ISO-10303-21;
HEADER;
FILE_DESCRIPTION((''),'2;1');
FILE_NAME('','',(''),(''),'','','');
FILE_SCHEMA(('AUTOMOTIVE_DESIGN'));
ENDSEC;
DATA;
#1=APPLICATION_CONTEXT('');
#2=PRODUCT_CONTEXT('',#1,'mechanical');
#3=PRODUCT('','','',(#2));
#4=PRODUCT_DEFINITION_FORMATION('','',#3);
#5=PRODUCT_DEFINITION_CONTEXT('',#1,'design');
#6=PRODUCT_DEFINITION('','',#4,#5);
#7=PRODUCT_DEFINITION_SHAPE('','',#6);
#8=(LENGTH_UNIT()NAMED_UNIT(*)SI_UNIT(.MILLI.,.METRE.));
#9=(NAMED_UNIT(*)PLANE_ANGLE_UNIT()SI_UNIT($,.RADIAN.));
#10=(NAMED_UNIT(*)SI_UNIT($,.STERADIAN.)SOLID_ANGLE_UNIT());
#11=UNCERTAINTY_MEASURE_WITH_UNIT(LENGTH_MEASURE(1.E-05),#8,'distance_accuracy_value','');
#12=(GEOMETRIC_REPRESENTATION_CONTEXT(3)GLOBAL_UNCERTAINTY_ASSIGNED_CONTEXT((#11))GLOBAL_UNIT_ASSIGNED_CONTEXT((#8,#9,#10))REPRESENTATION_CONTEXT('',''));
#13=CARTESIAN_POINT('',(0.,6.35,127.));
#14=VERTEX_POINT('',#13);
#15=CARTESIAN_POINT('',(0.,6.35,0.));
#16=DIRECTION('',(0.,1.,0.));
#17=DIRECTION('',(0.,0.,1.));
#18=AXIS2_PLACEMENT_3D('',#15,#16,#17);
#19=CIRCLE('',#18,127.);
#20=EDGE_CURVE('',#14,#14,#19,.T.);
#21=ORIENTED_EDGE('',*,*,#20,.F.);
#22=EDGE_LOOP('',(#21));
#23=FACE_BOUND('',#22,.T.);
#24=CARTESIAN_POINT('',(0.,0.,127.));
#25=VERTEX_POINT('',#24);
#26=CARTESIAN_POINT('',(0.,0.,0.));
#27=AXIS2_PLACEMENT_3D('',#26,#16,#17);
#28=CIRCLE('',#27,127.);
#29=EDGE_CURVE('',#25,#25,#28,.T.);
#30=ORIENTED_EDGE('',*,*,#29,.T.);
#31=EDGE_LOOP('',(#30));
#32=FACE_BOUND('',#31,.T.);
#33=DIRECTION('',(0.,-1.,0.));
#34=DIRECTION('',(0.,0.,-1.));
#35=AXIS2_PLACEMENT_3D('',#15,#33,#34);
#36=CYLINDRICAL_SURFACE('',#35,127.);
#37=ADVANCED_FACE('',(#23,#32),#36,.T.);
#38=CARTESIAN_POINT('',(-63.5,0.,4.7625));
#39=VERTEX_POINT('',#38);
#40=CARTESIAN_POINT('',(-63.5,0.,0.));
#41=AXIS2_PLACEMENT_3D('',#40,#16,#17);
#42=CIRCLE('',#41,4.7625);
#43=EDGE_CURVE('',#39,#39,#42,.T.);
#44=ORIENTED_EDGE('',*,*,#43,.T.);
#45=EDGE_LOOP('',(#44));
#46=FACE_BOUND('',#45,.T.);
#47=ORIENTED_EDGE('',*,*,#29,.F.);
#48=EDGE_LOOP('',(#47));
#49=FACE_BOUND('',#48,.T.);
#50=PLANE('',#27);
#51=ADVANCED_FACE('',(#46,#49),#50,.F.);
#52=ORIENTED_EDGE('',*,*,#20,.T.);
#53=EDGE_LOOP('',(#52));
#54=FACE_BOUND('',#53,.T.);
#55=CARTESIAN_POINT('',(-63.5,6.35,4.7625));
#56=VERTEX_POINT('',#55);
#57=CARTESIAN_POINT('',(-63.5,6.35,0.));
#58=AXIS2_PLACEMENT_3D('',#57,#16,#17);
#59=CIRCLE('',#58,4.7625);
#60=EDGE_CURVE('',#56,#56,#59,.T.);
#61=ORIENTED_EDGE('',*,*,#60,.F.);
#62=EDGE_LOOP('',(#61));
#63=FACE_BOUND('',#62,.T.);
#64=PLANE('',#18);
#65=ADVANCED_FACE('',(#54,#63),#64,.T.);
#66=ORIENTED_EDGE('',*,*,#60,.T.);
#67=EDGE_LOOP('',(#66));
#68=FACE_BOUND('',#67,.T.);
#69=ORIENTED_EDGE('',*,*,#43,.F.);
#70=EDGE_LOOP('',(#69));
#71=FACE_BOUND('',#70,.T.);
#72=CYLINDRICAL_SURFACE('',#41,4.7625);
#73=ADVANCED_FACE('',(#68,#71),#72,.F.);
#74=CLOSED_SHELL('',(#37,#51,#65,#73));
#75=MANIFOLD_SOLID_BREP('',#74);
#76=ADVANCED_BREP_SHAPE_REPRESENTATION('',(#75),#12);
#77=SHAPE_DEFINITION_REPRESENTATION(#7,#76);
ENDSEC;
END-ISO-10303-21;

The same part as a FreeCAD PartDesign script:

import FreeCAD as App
import Part
import Sketcher
from FreeCAD import Vector
Q = App.Units.Quantity

doc = App.newDocument("Part")
params = doc.addObject("Spreadsheet::Sheet", "Params")
for row, (alias, value) in enumerate([
    ("sketch1_diameter", "10 in"),
    ("pad1_length", "0.25 in"),
    ("sketch2_diameter", "0.375 in"),
], start=1):
    params.set(f"A{row}", alias)
    params.set(f"B{row}", "=" + value)
    params.setAlias(f"B{row}", alias)

body = doc.addObject("PartDesign::Body", "Body")

# Sketch on XZ plane
sketch1 = body.newObject("Sketcher::SketchObject", "Sketch")
sketch1.AttachmentSupport = (doc.getObject("XZ_Plane"), [""])
sketch1.MapMode = "FlatFace"
sketch1.addGeometry(Part.Circle(Vector(0, 0, 0), Vector(0, 0, 1), 127), False)
sketch1.addConstraint(Sketcher.Constraint("Coincident", 0, 3, -1, 1))
sketch1.addConstraint(Sketcher.Constraint("Diameter", 0, Q("10 in")))
sketch1.setExpression("Constraints[1]", "Params.sketch1_diameter")
pad1 = body.newObject("PartDesign::Pad", "Pad")
pad1.Profile = sketch1
pad1.setExpression("Length", "Params.pad1_length")
pad1.Reversed = True

# Sketch on XZ plane
sketch2 = body.newObject("Sketcher::SketchObject", "Sketch001")
sketch2.AttachmentSupport = (doc.getObject("XZ_Plane"), [""])
sketch2.MapMode = "FlatFace"
sketch2.AttachmentOffset = App.Placement(Vector(0, 0, -0.25 * 25.4), App.Rotation())
sketch2.addGeometry(Part.Circle(Vector(-63.5, 0, 0), Vector(0, 0, 1), 4.8), False)
sketch2.addConstraint(Sketcher.Constraint("PointOnObject", 0, 3, -1))
sketch2.addConstraint(Sketcher.Constraint("Diameter", 0, Q("0.375 in")))
sketch2.addConstraint(Sketcher.Constraint("DistanceX", 0, 3, -1, 1, Q("2.5 in")))
sketch2.setExpression("Constraints[1]", "Params.sketch2_diameter")
pocket1 = body.newObject("PartDesign::Pocket", "Pocket")
pocket1.Profile = sketch2
pocket1.Type = "ThroughAll"
pocket1.Reversed = True

doc.recompute()
